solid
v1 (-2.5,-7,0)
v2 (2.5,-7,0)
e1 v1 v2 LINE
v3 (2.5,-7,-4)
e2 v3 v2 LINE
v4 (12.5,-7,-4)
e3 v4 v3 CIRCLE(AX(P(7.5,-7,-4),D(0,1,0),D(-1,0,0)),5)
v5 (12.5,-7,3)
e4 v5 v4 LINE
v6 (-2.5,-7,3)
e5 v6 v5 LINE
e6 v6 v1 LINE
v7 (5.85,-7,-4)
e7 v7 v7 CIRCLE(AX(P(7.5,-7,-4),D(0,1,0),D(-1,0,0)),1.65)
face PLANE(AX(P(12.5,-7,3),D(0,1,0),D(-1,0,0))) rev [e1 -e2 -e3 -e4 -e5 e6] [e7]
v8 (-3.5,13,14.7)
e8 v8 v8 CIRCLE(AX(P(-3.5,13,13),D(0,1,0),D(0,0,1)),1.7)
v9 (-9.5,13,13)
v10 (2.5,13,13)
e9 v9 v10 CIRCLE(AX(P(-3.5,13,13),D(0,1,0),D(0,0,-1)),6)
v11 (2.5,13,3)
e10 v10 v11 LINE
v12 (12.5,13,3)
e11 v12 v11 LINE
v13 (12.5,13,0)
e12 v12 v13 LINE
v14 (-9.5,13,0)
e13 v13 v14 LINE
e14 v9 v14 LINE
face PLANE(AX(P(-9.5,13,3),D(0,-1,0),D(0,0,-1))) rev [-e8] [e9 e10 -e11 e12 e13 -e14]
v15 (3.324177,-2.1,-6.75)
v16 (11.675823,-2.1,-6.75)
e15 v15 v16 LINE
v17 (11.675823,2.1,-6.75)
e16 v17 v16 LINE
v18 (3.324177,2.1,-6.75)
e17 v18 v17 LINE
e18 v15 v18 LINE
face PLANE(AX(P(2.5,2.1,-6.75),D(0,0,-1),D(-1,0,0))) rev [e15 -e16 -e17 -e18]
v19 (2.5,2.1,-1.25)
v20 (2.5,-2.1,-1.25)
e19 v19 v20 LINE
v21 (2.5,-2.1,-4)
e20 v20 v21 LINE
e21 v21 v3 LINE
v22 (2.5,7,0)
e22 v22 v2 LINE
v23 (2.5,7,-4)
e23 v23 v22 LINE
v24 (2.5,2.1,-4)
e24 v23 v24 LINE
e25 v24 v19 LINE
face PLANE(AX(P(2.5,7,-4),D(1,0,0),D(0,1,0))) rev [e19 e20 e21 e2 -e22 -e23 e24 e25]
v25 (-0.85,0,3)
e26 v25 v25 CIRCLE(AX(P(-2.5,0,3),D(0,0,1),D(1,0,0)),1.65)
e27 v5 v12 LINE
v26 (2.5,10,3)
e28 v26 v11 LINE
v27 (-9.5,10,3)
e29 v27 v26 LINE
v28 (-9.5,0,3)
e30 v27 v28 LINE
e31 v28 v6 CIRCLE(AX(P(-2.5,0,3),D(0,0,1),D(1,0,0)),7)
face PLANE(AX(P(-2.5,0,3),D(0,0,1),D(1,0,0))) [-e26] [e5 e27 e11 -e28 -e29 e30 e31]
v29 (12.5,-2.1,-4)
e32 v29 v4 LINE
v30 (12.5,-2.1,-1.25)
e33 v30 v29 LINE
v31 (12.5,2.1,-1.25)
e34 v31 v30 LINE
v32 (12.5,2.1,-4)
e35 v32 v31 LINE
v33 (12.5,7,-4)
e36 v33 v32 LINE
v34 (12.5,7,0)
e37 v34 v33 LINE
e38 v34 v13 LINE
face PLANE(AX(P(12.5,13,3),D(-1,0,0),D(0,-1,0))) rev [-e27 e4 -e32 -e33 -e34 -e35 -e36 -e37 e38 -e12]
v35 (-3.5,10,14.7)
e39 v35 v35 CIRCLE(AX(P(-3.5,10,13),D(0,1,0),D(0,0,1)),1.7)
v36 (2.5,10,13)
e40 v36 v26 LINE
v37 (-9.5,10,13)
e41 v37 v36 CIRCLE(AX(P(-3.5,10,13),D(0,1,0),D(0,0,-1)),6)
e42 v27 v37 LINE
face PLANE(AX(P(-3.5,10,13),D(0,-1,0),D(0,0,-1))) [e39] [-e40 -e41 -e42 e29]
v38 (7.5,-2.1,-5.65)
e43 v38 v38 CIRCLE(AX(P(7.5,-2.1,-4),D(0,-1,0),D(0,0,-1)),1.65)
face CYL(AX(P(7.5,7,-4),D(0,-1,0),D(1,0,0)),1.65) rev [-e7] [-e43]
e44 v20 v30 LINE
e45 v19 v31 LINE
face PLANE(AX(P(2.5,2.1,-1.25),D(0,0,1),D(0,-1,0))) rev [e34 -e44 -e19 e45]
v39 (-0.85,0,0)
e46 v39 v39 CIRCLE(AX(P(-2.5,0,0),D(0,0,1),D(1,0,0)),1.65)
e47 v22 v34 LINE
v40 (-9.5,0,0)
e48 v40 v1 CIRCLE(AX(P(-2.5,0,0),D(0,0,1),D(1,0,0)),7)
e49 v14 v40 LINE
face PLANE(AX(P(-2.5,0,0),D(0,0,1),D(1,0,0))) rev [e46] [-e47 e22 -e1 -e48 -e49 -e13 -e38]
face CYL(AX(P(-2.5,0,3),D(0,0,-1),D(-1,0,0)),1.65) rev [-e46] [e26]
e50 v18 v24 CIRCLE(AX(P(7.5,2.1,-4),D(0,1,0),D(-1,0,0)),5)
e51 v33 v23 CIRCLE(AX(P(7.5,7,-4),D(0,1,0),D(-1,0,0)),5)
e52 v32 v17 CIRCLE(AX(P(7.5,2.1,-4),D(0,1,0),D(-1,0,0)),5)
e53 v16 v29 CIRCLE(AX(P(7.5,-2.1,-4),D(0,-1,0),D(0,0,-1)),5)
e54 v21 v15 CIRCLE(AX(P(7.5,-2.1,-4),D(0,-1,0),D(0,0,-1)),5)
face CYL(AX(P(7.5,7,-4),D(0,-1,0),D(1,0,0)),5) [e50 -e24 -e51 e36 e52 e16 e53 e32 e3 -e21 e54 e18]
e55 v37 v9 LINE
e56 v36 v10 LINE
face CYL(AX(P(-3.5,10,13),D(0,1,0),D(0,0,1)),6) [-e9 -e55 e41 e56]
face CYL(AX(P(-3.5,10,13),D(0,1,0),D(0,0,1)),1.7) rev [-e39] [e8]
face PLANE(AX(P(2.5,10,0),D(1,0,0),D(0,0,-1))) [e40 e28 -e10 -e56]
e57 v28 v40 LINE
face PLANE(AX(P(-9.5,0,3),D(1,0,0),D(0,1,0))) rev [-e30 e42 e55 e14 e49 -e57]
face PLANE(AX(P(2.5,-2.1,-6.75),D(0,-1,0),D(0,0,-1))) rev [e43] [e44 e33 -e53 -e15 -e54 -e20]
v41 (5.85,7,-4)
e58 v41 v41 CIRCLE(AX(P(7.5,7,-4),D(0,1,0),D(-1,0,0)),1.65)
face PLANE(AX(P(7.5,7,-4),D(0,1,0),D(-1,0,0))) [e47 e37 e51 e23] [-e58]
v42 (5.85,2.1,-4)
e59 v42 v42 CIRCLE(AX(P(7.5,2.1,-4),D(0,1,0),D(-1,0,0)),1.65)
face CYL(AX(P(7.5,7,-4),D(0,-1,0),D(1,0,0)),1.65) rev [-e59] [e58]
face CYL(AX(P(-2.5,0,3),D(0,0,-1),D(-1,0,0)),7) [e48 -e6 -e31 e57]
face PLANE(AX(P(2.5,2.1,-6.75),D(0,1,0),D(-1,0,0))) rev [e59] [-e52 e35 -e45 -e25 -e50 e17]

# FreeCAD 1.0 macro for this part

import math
import FreeCAD as App
import Part
import Sketcher

doc = App.newDocument("Part")
body = doc.addObject("PartDesign::Body", "Body")

# Sketch on XY plane
sketch1 = body.newObject("Sketcher::SketchObject", "Sketch")
sketch1.AttachmentSupport = (doc.getObject("XY_Plane"), [""])
sketch1.MapMode = "FlatFace"
sketch1.addGeometry([
    Part.LineSegment(App.Vector(-2.5, -7, 0), App.Vector(12.5, -7, 0)),  # 0
    Part.LineSegment(App.Vector(12.5, -7, 0), App.Vector(12.5, 13, 0)),  # 1
    Part.LineSegment(App.Vector(12.5, 13, 0), App.Vector(-9.5, 13, 0)),  # 2
    Part.LineSegment(App.Vector(-9.5, 13, 0), App.Vector(-9.5, 0, 0)),  # 3
    Part.ArcOfCircle(Part.Circle(App.Vector(-2.5, 0, 0), App.Vector(0, 0, 1), 7), math.radians(-180), math.radians(-90)),  # 4
    Part.Circle(App.Vector(-2.5, 0, 0), App.Vector(0, 0, 1), 1.6),  # 5
], False)
sketch1.addConstraint([
    Sketcher.Constraint("Coincident", 0, 2, 1, 1),
    Sketcher.Constraint("Coincident", 1, 2, 2, 1),
    Sketcher.Constraint("Coincident", 2, 2, 3, 1),
    Sketcher.Constraint("Tangent", 3, 2, 4, 1),
    Sketcher.Constraint("Tangent", 4, 2, 0, 1),
    Sketcher.Constraint("Horizontal", 0),
    Sketcher.Constraint("Vertical", 1),
    Sketcher.Constraint("Horizontal", 2),
    Sketcher.Constraint("Vertical", 3),
    Sketcher.Constraint("Coincident", 5, 3, 4, 3),
    Sketcher.Constraint("PointOnObject", 4, 3, -1),
    Sketcher.Constraint("Radius", 4, 7.0),
    Sketcher.Constraint("Diameter", 5, 3.3),
    Sketcher.Constraint("DistanceX", 0, 1, 0, 2, 15.0),
    Sketcher.Constraint("DistanceY", 1, 1, 1, 2, 20.0),
    Sketcher.Constraint("DistanceX", 4, 3, -1, 1, 2.5),
])
pad1 = body.newObject("PartDesign::Pad", "Pad")
pad1.Profile = sketch1
pad1.Length = 3

# Sketch on XZ plane
sketch2 = body.newObject("Sketcher::SketchObject", "Sketch001")
sketch2.AttachmentSupport = (doc.getObject("XZ_Plane"), [""])
sketch2.MapMode = "FlatFace"
sketch2.AttachmentOffset = App.Placement(App.Vector(0, 0, 7), App.Rotation())
sketch2.addGeometry([
    Part.LineSegment(App.Vector(2.5, -4, 0), App.Vector(2.5, 0, 0)),  # 0
    Part.LineSegment(App.Vector(2.5, 0, 0), App.Vector(12.5, 0, 0)),  # 1
    Part.LineSegment(App.Vector(12.5, 0, 0), App.Vector(12.5, -4, 0)),  # 2
    Part.ArcOfCircle(Part.Circle(App.Vector(7.5, -4, 0), App.Vector(0, 0, 1), 5), math.radians(180), math.radians(360)),  # 3
    Part.Circle(App.Vector(7.5, -4, 0), App.Vector(0, 0, 1), 1.6),  # 4
], False)
sketch2.addConstraint([
    Sketcher.Constraint("Coincident", 0, 2, 1, 1),
    Sketcher.Constraint("Coincident", 1, 2, 2, 1),
    Sketcher.Constraint("Tangent", 2, 2, 3, 2),
    Sketcher.Constraint("Tangent", 3, 1, 0, 1),
    Sketcher.Constraint("Vertical", 0),
    Sketcher.Constraint("Horizontal", 1),
    Sketcher.Constraint("Vertical", 2),
    Sketcher.Constraint("Coincident", 4, 3, 3, 3),
    Sketcher.Constraint("PointOnObject", 0, 2, -1),
    Sketcher.Constraint("Radius", 3, 5.0),
    Sketcher.Constraint("Diameter", 4, 3.3),
    Sketcher.Constraint("DistanceY", 0, 1, 0, 2, 4.0),
    Sketcher.Constraint("DistanceX", -1, 1, 3, 3, 7.5),
])
pad2 = body.newObject("PartDesign::Pad", "Pad001")
pad2.Profile = sketch2
pad2.Length = 14
pad2.Reversed = True

# Sketch on YZ plane
sketch3 = body.newObject("Sketcher::SketchObject", "Sketch002")
sketch3.AttachmentSupport = (doc.getObject("YZ_Plane"), [""])
sketch3.MapMode = "FlatFace"
sketch3.AttachmentOffset = App.Placement(App.Vector(0, 0, 12.5), App.Rotation())
sketch3.addGeometry([
    Part.LineSegment(App.Vector(2.1, -1.2, 0), App.Vector(-2.1, -1.2, 0)),
    Part.LineSegment(App.Vector(-2.1, -1.2, 0), App.Vector(-2.1, -6.8, 0)),
    Part.LineSegment(App.Vector(-2.1, -6.8, 0), App.Vector(2.1, -6.8, 0)),
    Part.LineSegment(App.Vector(2.1, -6.8, 0), App.Vector(2.1, -1.2, 0)),
], False)
sketch3.addConstraint([
    Sketcher.Constraint("Coincident", 0, 2, 1, 1),
    Sketcher.Constraint("Coincident", 1, 2, 2, 1),
    Sketcher.Constraint("Coincident", 2, 2, 3, 1),
    Sketcher.Constraint("Coincident", 3, 2, 0, 1),
    Sketcher.Constraint("Horizontal", 0),
    Sketcher.Constraint("Vertical", 1),
    Sketcher.Constraint("Horizontal", 2),
    Sketcher.Constraint("Vertical", 3),
    Sketcher.Constraint("DistanceX", 0, 2, 0, 1, 4.2),
    Sketcher.Constraint("DistanceY", 1, 2, 1, 1, 5.5),
    Sketcher.Constraint("DistanceX", 0, 2, -1, 1, 2.1),
    Sketcher.Constraint("DistanceY", 0, 2, -1, 1, 1.25),
])
pocket1 = body.newObject("PartDesign::Pocket", "Pocket")
pocket1.Profile = sketch3
pocket1.Length = 10

# Sketch on XZ plane
sketch4 = body.newObject("Sketcher::SketchObject", "Sketch003")
sketch4.AttachmentSupport = (doc.getObject("XZ_Plane"), [""])
sketch4.MapMode = "FlatFace"
sketch4.AttachmentOffset = App.Placement(App.Vector(0, 0, -13), App.Rotation())
sketch4.addGeometry([
    Part.LineSegment(App.Vector(2.5, 13, 0), App.Vector(2.5, 0, 0)),  # 0
    Part.LineSegment(App.Vector(2.5, 0, 0), App.Vector(-9.5, 0, 0)),  # 1
    Part.LineSegment(App.Vector(-9.5, 0, 0), App.Vector(-9.5, 13, 0)),  # 2
    Part.ArcOfCircle(Part.Circle(App.Vector(-3.5, 13, 0), App.Vector(0, 0, 1), 6), math.radians(0), math.radians(180)),  # 3
    Part.Circle(App.Vector(-3.5, 13, 0), App.Vector(0, 0, 1), 1.7),  # 4
], False)
sketch4.addConstraint([
    Sketcher.Constraint("Coincident", 0, 2, 1, 1),
    Sketcher.Constraint("Coincident", 1, 2, 2, 1),
    Sketcher.Constraint("Tangent", 2, 2, 3, 2),
    Sketcher.Constraint("Tangent", 3, 1, 0, 1),
    Sketcher.Constraint("Vertical", 0),
    Sketcher.Constraint("Horizontal", 1),
    Sketcher.Constraint("Vertical", 2),
    Sketcher.Constraint("Coincident", 4, 3, 3, 3),
    Sketcher.Constraint("PointOnObject", 0, 2, -1),
    Sketcher.Constraint("Radius", 3, 6.0),
    Sketcher.Constraint("Diameter", 4, 3.4),
    Sketcher.Constraint("DistanceY", 0, 2, 0, 1, 13.0),
    Sketcher.Constraint("DistanceX", 3, 3, -1, 1, 3.5),
])
pad3 = body.newObject("PartDesign::Pad", "Pad002")
pad3.Profile = sketch4
pad3.Length = 3

doc.recompute()
